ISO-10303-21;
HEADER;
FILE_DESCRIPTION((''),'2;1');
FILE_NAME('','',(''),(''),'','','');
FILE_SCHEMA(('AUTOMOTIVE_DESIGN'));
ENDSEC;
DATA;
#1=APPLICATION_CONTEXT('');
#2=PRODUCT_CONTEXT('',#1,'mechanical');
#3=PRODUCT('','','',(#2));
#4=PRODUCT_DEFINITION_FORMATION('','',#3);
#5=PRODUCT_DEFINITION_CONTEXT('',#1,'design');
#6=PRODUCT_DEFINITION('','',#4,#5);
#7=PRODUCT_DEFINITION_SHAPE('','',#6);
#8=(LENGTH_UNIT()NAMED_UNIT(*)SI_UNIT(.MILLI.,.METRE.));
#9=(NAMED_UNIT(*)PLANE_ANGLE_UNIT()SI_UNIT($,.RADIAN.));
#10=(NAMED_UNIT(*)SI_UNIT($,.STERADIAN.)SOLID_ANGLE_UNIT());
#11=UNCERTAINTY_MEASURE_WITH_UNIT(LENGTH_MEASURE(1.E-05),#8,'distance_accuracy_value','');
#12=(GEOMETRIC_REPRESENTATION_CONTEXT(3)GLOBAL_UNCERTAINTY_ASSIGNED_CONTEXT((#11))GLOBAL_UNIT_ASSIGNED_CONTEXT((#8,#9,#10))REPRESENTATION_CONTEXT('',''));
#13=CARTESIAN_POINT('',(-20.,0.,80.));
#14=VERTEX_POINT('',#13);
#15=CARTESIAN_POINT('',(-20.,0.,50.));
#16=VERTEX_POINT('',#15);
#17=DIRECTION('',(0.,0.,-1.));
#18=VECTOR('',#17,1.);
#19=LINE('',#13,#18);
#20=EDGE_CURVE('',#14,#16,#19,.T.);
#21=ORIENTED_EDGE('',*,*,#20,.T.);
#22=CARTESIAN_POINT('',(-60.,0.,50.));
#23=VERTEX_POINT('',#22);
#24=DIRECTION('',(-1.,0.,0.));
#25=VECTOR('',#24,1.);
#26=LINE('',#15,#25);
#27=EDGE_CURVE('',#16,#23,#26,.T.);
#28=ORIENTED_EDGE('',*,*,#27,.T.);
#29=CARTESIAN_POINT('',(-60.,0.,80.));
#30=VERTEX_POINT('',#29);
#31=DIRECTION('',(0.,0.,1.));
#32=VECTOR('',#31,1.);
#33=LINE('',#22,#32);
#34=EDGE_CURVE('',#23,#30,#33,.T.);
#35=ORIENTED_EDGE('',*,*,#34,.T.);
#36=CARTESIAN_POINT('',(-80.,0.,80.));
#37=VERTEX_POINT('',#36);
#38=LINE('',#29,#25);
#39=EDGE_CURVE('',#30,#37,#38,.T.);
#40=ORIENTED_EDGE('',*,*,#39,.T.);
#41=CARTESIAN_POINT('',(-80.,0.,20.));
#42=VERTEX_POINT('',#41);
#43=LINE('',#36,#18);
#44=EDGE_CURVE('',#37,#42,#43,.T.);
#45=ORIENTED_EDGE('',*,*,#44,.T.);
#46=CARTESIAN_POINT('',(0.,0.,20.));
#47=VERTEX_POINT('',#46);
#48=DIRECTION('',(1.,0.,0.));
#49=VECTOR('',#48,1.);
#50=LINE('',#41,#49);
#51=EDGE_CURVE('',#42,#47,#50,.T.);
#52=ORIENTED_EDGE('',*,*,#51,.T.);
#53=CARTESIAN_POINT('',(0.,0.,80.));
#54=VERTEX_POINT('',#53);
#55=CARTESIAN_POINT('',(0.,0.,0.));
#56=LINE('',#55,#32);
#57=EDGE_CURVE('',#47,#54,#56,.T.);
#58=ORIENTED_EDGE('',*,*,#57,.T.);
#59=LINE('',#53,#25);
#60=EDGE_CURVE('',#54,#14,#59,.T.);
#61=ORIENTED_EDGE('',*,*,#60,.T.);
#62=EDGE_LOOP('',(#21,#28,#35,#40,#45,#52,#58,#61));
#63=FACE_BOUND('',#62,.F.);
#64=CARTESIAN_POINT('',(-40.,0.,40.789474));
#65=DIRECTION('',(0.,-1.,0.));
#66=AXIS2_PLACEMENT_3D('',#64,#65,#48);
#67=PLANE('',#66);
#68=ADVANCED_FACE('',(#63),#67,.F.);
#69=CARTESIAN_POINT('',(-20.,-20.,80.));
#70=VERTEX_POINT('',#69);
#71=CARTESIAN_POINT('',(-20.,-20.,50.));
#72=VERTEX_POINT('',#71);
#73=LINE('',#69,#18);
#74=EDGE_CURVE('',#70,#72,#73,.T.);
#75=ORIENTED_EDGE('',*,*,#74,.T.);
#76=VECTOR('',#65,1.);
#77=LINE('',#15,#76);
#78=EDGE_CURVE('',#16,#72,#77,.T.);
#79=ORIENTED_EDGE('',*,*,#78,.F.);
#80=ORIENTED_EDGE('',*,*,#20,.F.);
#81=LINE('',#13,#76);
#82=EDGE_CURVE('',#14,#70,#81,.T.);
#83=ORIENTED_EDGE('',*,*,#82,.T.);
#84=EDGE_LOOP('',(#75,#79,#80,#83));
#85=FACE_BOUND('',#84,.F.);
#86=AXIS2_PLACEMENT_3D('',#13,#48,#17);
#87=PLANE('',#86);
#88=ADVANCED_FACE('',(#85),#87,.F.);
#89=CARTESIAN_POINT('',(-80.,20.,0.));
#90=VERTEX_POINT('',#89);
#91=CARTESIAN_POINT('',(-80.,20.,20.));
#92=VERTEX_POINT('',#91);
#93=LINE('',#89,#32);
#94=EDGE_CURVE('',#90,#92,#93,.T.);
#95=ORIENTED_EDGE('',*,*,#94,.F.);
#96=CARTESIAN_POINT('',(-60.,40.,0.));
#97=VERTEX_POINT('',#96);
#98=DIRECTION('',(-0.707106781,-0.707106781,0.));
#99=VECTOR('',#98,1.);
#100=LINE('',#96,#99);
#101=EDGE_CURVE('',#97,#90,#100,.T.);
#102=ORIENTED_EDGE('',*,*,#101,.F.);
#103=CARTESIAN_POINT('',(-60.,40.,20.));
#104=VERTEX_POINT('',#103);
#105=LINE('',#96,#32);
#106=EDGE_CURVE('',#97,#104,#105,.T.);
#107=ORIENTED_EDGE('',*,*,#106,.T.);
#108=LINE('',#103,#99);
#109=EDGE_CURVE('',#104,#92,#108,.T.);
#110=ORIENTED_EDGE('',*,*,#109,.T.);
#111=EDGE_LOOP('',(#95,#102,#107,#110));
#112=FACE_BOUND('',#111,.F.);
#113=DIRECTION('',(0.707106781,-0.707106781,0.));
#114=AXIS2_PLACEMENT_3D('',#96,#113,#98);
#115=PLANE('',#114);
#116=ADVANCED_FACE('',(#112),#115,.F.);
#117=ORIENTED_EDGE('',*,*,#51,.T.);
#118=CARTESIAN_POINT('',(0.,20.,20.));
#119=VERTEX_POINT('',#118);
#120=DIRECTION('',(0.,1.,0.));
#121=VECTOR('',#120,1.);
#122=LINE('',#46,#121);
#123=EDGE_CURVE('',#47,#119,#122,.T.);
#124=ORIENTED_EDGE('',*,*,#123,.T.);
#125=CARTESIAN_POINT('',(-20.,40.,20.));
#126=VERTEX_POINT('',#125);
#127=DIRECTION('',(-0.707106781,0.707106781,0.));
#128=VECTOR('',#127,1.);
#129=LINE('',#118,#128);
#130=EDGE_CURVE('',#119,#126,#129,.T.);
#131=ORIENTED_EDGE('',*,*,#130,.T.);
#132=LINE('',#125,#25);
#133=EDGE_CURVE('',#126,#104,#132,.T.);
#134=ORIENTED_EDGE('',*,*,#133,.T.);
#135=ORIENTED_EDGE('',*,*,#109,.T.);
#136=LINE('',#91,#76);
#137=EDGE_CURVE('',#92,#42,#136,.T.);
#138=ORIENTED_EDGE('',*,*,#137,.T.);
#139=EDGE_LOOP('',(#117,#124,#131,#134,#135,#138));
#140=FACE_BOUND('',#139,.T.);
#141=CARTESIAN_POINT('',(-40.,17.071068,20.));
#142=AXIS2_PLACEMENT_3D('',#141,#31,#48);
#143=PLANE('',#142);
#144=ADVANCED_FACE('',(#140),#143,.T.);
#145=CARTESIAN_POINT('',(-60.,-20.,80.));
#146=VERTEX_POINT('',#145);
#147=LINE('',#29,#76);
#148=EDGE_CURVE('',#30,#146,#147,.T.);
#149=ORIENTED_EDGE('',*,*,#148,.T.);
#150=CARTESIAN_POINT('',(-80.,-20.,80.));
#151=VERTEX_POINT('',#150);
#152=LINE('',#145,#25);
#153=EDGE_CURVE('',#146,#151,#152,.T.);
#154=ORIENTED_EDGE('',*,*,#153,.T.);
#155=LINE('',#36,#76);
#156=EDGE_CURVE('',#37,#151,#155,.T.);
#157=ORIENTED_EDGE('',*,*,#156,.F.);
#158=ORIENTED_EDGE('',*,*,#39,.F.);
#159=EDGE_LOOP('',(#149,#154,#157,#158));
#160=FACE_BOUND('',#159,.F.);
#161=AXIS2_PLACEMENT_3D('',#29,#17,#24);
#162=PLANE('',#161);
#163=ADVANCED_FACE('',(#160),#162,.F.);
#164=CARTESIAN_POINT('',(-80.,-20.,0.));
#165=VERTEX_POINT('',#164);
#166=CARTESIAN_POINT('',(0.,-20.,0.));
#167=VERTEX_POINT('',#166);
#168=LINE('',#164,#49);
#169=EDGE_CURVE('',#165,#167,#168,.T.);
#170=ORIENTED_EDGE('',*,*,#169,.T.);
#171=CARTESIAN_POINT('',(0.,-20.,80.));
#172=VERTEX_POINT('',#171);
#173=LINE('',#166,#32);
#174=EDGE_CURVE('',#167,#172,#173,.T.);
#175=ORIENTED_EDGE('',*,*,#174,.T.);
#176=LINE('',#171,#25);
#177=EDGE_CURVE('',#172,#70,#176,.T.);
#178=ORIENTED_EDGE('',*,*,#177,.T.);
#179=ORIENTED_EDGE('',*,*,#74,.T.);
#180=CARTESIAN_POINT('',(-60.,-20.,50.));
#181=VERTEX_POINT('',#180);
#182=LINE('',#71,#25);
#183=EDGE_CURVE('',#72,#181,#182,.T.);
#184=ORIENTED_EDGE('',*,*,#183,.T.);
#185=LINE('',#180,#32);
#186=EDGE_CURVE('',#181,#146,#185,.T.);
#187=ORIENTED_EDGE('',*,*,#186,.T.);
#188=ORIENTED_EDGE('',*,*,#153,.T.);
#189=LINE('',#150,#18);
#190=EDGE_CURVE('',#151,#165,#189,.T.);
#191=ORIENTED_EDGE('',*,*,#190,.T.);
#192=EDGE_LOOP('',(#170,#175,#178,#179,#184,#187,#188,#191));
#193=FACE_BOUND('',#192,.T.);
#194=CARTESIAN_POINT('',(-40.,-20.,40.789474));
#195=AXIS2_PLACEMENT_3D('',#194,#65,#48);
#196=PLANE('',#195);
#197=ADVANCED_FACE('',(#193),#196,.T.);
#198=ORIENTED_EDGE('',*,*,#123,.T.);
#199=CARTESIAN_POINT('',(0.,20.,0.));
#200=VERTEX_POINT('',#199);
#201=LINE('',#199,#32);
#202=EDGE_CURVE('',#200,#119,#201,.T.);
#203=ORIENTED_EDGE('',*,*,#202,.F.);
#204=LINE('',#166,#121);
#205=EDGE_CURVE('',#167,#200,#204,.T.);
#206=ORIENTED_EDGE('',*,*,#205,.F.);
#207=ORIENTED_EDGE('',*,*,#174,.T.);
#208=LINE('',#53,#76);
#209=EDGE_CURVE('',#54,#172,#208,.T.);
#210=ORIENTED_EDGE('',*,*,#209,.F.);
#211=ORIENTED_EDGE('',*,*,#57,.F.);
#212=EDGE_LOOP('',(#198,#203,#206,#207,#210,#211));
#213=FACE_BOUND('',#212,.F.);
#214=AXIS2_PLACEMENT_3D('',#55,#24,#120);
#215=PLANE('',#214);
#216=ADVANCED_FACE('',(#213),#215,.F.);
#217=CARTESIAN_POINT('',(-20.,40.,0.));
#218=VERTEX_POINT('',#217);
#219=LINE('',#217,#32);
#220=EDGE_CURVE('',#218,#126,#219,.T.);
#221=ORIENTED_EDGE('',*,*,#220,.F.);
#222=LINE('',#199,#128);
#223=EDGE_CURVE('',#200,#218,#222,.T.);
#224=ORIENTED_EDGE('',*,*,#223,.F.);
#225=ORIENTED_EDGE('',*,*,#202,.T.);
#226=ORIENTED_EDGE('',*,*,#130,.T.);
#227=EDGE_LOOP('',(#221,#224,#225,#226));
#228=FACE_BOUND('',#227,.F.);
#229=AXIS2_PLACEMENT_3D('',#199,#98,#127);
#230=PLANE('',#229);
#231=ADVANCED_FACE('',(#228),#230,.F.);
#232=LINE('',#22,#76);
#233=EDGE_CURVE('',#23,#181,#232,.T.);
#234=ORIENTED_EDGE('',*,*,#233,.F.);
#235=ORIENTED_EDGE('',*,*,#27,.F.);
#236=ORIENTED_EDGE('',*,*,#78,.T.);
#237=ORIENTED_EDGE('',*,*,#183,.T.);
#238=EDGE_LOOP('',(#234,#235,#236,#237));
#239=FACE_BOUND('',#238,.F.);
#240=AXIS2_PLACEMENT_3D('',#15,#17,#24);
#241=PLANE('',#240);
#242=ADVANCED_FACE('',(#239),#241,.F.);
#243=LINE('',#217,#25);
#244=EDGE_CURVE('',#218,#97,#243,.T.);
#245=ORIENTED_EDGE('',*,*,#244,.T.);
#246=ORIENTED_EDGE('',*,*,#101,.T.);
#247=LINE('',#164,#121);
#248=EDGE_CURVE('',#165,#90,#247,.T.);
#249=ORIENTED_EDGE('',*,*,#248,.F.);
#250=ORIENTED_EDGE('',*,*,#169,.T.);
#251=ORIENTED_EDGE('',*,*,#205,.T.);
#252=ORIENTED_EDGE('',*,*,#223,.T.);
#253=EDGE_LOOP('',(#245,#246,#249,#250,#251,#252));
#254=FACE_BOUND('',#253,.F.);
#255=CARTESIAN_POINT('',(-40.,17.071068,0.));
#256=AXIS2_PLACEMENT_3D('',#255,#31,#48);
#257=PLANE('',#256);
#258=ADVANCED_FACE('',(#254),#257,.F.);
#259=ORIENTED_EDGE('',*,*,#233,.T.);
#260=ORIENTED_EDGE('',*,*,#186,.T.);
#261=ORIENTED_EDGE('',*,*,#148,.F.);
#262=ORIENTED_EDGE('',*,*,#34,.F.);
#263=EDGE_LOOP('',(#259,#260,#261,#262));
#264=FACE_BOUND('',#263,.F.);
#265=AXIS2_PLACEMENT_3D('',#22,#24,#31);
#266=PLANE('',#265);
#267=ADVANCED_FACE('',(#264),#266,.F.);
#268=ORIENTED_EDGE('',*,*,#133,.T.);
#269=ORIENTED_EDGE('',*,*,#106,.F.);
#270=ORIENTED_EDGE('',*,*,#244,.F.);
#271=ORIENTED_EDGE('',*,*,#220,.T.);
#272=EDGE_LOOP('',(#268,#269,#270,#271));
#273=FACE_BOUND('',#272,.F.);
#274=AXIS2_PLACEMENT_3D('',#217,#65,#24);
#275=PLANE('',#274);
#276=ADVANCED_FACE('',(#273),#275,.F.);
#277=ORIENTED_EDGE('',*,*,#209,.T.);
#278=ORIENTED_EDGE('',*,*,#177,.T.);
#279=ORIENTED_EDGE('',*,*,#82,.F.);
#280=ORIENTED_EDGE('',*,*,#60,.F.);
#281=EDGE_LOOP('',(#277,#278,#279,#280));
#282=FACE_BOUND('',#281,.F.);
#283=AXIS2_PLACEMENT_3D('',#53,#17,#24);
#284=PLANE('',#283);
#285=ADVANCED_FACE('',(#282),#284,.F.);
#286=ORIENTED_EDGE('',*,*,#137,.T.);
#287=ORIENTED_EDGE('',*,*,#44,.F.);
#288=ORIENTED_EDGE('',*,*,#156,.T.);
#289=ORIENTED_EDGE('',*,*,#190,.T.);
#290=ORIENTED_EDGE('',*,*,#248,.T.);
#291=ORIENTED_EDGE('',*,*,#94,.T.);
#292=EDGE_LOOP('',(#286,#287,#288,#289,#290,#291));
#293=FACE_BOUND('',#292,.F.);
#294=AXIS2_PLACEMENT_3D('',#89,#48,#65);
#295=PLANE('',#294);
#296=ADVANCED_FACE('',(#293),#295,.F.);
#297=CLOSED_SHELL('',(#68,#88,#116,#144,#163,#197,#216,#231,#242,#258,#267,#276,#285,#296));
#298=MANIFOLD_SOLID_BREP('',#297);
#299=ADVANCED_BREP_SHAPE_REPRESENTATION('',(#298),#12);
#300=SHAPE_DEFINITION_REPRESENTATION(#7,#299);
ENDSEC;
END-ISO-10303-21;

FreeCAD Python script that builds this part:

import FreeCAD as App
import Part
import Sketcher

V = App.Vector
Q = App.Units.Quantity

doc = App.newDocument("Part")
body = doc.addObject("PartDesign::Body", "Body")

# Sketch on XZ plane
sketch1 = body.newObject("Sketcher::SketchObject", "Sketch")
sketch1.AttachmentSupport = (doc.getObject("XZ_Plane"), [""])
sketch1.MapMode = "FlatFace"
sketch1.addGeometry(Part.LineSegment(V(-20, 50, 0), V(-60, 50, 0)), False)
sketch1.addGeometry(Part.LineSegment(V(-60, 50, 0), V(-60, 80, 0)), False)
sketch1.addGeometry(Part.LineSegment(V(-60, 80, 0), V(-80, 80, 0)), False)
sketch1.addGeometry(Part.LineSegment(V(-80, 80, 0), V(-80, 0, 0)), False)
sketch1.addGeometry(Part.LineSegment(V(-80, 0, 0), V(0, 0, 0)), False)
sketch1.addGeometry(Part.LineSegment(V(0, 0, 0), V(0, 80, 0)), False)
sketch1.addGeometry(Part.LineSegment(V(0, 80, 0), V(-20, 80, 0)), False)
sketch1.addGeometry(Part.LineSegment(V(-20, 80, 0), V(-20, 50, 0)), False)
sketch1.addConstraint(Sketcher.Constraint("Coincident", 0, 2, 1, 1))
sketch1.addConstraint(Sketcher.Constraint("Coincident", 1, 2, 2, 1))
sketch1.addConstraint(Sketcher.Constraint("Coincident", 2, 2, 3, 1))
sketch1.addConstraint(Sketcher.Constraint("Coincident", 3, 2, 4, 1))
sketch1.addConstraint(Sketcher.Constraint("Coincident", 4, 2, 5, 1))
sketch1.addConstraint(Sketcher.Constraint("Coincident", 5, 2, 6, 1))
sketch1.addConstraint(Sketcher.Constraint("Coincident", 6, 2, 7, 1))
sketch1.addConstraint(Sketcher.Constraint("Coincident", 7, 2, 0, 1))
sketch1.addConstraint(Sketcher.Constraint("Horizontal", 0))
sketch1.addConstraint(Sketcher.Constraint("Vertical", 1))
sketch1.addConstraint(Sketcher.Constraint("Horizontal", 2))
sketch1.addConstraint(Sketcher.Constraint("Vertical", 3))
sketch1.addConstraint(Sketcher.Constraint("Horizontal", 4))
sketch1.addConstraint(Sketcher.Constraint("Vertical", 5))
sketch1.addConstraint(Sketcher.Constraint("Horizontal", 6))
sketch1.addConstraint(Sketcher.Constraint("Vertical", 7))
sketch1.addConstraint(Sketcher.Constraint("Coincident", 4, 2, -1, 1))
sketch1.addConstraint(Sketcher.Constraint("Horizontal", 2, 2, 5, 2))
sketch1.addConstraint(Sketcher.Constraint("Equal", 2, 6))
sketch1.addConstraint(Sketcher.Constraint("Equal", 4, 3))
sketch1.addConstraint(Sketcher.Constraint("DistanceX", 0, 2, 0, 1, Q("40 mm")))
sketch1.addConstraint(Sketcher.Constraint("DistanceX", 2, 2, 2, 1, Q("20 mm")))
sketch1.addConstraint(Sketcher.Constraint("DistanceY", 1, 1, 1, 2, Q("30 mm")))
pad1 = body.newObject("PartDesign::Pad", "Pad")
pad1.Profile = sketch1
pad1.Length = 20

# Sketch on XY plane
sketch2 = body.newObject("Sketcher::SketchObject", "Sketch001")
sketch2.AttachmentSupport = (doc.getObject("XY_Plane"), [""])
sketch2.MapMode = "FlatFace"
sketch2.addGeometry(Part.LineSegment(V(-80, 0, 0), V(0, 0, 0)), False)
sketch2.addGeometry(Part.LineSegment(V(0, 0, 0), V(0, 20, 0)), False)
sketch2.addGeometry(Part.LineSegment(V(0, 20, 0), V(-20, 40, 0)), False)
sketch2.addGeometry(Part.LineSegment(V(-20, 40, 0), V(-60, 40, 0)), False)
sketch2.addGeometry(Part.LineSegment(V(-60, 40, 0), V(-80, 20, 0)), False)
sketch2.addGeometry(Part.LineSegment(V(-80, 20, 0), V(-80, 0, 0)), False)
sketch2.addConstraint(Sketcher.Constraint("Coincident", 0, 2, 1, 1))
sketch2.addConstraint(Sketcher.Constraint("Coincident", 1, 2, 2, 1))
sketch2.addConstraint(Sketcher.Constraint("Coincident", 2, 2, 3, 1))
sketch2.addConstraint(Sketcher.Constraint("Coincident", 3, 2, 4, 1))
sketch2.addConstraint(Sketcher.Constraint("Coincident", 4, 2, 5, 1))
sketch2.addConstraint(Sketcher.Constraint("Coincident", 5, 2, 0, 1))
sketch2.addConstraint(Sketcher.Constraint("Horizontal", 0))
sketch2.addConstraint(Sketcher.Constraint("Vertical", 1))
sketch2.addConstraint(Sketcher.Constraint("Horizontal", 3))
sketch2.addConstraint(Sketcher.Constraint("Vertical", 5))
sketch2.addConstraint(Sketcher.Constraint("Coincident", 0, 2, -1, 1))
sketch2.addConstraint(Sketcher.Constraint("Perpendicular", 2, 4))
sketch2.addConstraint(Sketcher.Constraint("Horizontal", 1, 2, 4, 2))
sketch2.addConstraint(Sketcher.Constraint("Equal", 2, 4))
sketch2.addConstraint(Sketcher.Constraint("DistanceX", 0, 1, 0, 2, Q("80 mm")))
sketch2.addConstraint(Sketcher.Constraint("DistanceX", 3, 2, 3, 1, Q("40 mm")))
sketch2.addConstraint(Sketcher.Constraint("DistanceY", 1, 1, 1, 2, Q("20 mm")))
pad2 = body.newObject("PartDesign::Pad", "Pad001")
pad2.Profile = sketch2
pad2.Length = 20

doc.recompute()
